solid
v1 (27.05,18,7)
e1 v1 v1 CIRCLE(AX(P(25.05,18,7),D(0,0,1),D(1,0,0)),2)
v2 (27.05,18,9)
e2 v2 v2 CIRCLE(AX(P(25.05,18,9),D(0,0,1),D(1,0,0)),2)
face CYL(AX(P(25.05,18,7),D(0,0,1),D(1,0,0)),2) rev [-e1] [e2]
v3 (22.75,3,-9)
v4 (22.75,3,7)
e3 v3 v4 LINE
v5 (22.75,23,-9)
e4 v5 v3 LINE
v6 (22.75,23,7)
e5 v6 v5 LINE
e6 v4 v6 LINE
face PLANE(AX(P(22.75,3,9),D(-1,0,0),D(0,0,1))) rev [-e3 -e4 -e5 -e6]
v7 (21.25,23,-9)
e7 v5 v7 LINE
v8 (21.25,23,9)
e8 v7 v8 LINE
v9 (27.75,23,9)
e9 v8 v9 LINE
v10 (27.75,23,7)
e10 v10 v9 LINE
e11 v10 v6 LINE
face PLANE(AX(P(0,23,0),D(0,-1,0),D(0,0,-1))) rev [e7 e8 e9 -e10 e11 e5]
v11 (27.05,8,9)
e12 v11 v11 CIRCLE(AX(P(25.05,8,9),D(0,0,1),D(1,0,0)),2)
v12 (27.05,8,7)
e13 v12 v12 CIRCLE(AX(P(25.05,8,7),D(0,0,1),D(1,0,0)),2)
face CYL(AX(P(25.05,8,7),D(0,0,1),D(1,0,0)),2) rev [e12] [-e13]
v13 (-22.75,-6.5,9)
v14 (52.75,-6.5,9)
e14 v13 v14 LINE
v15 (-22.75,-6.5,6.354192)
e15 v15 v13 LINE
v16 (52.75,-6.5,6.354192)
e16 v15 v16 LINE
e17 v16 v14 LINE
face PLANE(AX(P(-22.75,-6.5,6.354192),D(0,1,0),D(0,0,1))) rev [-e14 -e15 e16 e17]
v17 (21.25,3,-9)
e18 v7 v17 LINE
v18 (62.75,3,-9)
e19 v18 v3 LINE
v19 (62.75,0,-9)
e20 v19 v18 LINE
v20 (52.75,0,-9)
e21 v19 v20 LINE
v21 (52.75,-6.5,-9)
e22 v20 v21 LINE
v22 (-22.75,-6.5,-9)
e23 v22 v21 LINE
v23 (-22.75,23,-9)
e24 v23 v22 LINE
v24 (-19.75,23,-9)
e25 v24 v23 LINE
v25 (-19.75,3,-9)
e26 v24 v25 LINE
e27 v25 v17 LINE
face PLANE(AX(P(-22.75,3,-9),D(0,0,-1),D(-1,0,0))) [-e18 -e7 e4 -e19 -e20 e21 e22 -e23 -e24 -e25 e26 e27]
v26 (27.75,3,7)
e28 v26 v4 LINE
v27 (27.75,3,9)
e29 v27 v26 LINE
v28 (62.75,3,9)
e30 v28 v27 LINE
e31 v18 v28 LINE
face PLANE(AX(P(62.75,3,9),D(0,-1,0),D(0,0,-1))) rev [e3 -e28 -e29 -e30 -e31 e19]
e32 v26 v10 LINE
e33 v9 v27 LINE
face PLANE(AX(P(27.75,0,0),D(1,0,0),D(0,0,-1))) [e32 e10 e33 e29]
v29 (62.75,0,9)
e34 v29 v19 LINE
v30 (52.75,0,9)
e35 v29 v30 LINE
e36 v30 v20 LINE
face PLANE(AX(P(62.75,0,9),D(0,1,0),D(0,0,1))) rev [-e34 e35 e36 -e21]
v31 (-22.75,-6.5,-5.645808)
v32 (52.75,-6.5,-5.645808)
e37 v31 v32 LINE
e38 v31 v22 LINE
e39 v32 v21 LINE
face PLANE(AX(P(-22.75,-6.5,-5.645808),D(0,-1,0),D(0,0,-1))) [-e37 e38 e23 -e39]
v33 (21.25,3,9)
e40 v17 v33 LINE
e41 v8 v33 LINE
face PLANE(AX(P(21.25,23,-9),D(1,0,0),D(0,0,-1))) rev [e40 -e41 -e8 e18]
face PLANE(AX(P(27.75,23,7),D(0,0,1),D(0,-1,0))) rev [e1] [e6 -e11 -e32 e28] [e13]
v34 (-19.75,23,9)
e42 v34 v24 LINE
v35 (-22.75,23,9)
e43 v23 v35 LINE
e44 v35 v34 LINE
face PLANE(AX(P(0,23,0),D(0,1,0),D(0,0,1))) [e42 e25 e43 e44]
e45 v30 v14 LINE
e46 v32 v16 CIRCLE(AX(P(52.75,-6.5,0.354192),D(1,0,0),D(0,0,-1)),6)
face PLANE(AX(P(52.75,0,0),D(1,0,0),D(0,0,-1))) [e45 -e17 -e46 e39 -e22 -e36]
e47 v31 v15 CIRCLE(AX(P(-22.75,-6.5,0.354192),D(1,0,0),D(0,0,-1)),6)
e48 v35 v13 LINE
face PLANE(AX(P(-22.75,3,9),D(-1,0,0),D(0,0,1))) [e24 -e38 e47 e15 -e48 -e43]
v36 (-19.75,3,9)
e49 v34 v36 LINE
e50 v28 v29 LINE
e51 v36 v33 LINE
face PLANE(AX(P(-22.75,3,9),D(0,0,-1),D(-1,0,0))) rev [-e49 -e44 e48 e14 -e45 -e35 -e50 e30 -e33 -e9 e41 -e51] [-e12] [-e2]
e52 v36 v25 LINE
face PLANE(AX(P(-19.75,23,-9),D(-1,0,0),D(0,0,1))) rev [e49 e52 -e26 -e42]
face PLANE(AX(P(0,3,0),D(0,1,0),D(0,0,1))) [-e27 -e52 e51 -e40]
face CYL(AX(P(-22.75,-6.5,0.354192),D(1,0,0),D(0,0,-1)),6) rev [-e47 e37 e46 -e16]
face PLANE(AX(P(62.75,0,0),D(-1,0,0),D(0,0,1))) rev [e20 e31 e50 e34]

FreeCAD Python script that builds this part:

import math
import FreeCAD as App
import Part
import Sketcher

V = App.Vector
Q = App.Units.Quantity

doc = App.newDocument("Part")
body = doc.addObject("PartDesign::Body", "Body")

# Sketch on XZ plane
sketch1 = body.newObject("Sketcher::SketchObject", "Sketch")
sketch1.AttachmentSupport = (doc.getObject("XZ_Plane"), [""])
sketch1.MapMode = "FlatFace"
sketch1.addGeometry(Part.LineSegment(V(-22.75, -9, 0), V(-22.75, 9, 0)), False)
sketch1.addGeometry(Part.LineSegment(V(-22.75, 9, 0), V(22.75, 9, 0)), False)
sketch1.addGeometry(Part.LineSegment(V(22.75, 9, 0), V(22.75, -9, 0)), False)
sketch1.addGeometry(Part.LineSegment(V(22.75, -9, 0), V(-22.75, -9, 0)), False)
sketch1.addConstraint(Sketcher.Constraint("Coincident", 0, 2, 1, 1))
sketch1.addConstraint(Sketcher.Constraint("Coincident", 1, 2, 2, 1))
sketch1.addConstraint(Sketcher.Constraint("Coincident", 2, 2, 3, 1))
sketch1.addConstraint(Sketcher.Constraint("Coincident", 3, 2, 0, 1))
sketch1.addConstraint(Sketcher.Constraint("Vertical", 0))
sketch1.addConstraint(Sketcher.Constraint("Horizontal", 1))
sketch1.addConstraint(Sketcher.Constraint("Vertical", 2))
sketch1.addConstraint(Sketcher.Constraint("Horizontal", 3))
sketch1.addConstraint(Sketcher.Constraint("Symmetric", 0, 2, 2, 2, -1, 1))
sketch1.addConstraint(Sketcher.Constraint("DistanceY", 0, 1, 0, 2, Q("18 mm")))
sketch1.addConstraint(Sketcher.Constraint("DistanceX", 1, 1, 1, 2, Q("45.5 mm")))
pad1 = body.newObject("PartDesign::Pad", "Pad")
pad1.Profile = sketch1
pad1.Length = 3
pad1.Reversed = True

# Sketch on XZ plane
sketch2 = body.newObject("Sketcher::SketchObject", "Sketch001")
sketch2.AttachmentSupport = (doc.getObject("XZ_Plane"), [""])
sketch2.MapMode = "FlatFace"
sketch2.AttachmentOffset = App.Placement(V(0, 0, -3), App.Rotation())
sketch2.addGeometry(Part.LineSegment(V(-22.75, -9, 0), V(-22.75, 9, 0)), False)
sketch2.addGeometry(Part.LineSegment(V(-22.75, 9, 0), V(-19.75, 9, 0)), False)
sketch2.addGeometry(Part.LineSegment(V(-19.75, 9, 0), V(-19.75, -9, 0)), False)
sketch2.addGeometry(Part.LineSegment(V(-19.75, -9, 0), V(-22.75, -9, 0)), False)
sketch2.addGeometry(Part.LineSegment(V(21.25, -9, 0), V(21.25, 9, 0)), False)
sketch2.addGeometry(Part.LineSegment(V(21.25, 9, 0), V(22.75, 9, 0)), False)
sketch2.addGeometry(Part.LineSegment(V(22.75, 9, 0), V(22.75, -9, 0)), False)
sketch2.addGeometry(Part.LineSegment(V(22.75, -9, 0), V(21.25, -9, 0)), False)
sketch2.addConstraint(Sketcher.Constraint("Coincident", 0, 2, 1, 1))
sketch2.addConstraint(Sketcher.Constraint("Coincident", 1, 2, 2, 1))
sketch2.addConstraint(Sketcher.Constraint("Coincident", 2, 2, 3, 1))
sketch2.addConstraint(Sketcher.Constraint("Coincident", 3, 2, 0, 1))
sketch2.addConstraint(Sketcher.Constraint("Coincident", 4, 2, 5, 1))
sketch2.addConstraint(Sketcher.Constraint("Coincident", 5, 2, 6, 1))
sketch2.addConstraint(Sketcher.Constraint("Coincident", 6, 2, 7, 1))
sketch2.addConstraint(Sketcher.Constraint("Coincident", 7, 2, 4, 1))
sketch2.addConstraint(Sketcher.Constraint("Vertical", 0))
sketch2.addConstraint(Sketcher.Constraint("Horizontal", 1))
sketch2.addConstraint(Sketcher.Constraint("Vertical", 2))
sketch2.addConstraint(Sketcher.Constraint("Horizontal", 3))
sketch2.addConstraint(Sketcher.Constraint("Vertical", 4))
sketch2.addConstraint(Sketcher.Constraint("Horizontal", 5))
sketch2.addConstraint(Sketcher.Constraint("Vertical", 6))
sketch2.addConstraint(Sketcher.Constraint("Horizontal", 7))
sketch2.addConstraint(Sketcher.Constraint("Symmetric", 3, 2, 5, 2, -1, 1))
sketch2.addConstraint(Sketcher.Constraint("Horizontal", 1, 2, 4, 2))
sketch2.addConstraint(Sketcher.Constraint("Horizontal", 3, 2, 6, 2))
sketch2.addConstraint(Sketcher.Constraint("DistanceX", 1, 1, 1, 2, Q("3 mm")))
sketch2.addConstraint(Sketcher.Constraint("DistanceY", 0, 1, 0, 2, Q("18 mm")))
sketch2.addConstraint(Sketcher.Constraint("DistanceX", 5, 1, 5, 2, Q("1.5 mm")))
sketch2.addConstraint(Sketcher.Constraint("DistanceX", 1, 2, 4, 2, Q("41 mm")))
pad2 = body.newObject("PartDesign::Pad", "Pad001")
pad2.Profile = sketch2
pad2.Length = 20
pad2.Reversed = True

# Sketch on YZ plane
sketch3 = body.newObject("Sketcher::SketchObject", "Sketch002")
sketch3.AttachmentSupport = (doc.getObject("YZ_Plane"), [""])
sketch3.MapMode = "FlatFace"
sketch3.AttachmentOffset = App.Placement(V(0, 0, 22.75), App.Rotation())
sketch3.addGeometry(Part.LineSegment(V(23, 9, 0), V(3, 9, 0)), False)
sketch3.addGeometry(Part.LineSegment(V(3, 9, 0), V(3, 7, 0)), False)
sketch3.addGeometry(Part.LineSegment(V(3, 7, 0), V(23, 7, 0)), False)
sketch3.addGeometry(Part.LineSegment(V(23, 7, 0), V(23, 9, 0)), False)
sketch3.addConstraint(Sketcher.Constraint("Coincident", 0, 2, 1, 1))
sketch3.addConstraint(Sketcher.Constraint("Coincident", 1, 2, 2, 1))
sketch3.addConstraint(Sketcher.Constraint("Coincident", 2, 2, 3, 1))
sketch3.addConstraint(Sketcher.Constraint("Coincident", 3, 2, 0, 1))
sketch3.addConstraint(Sketcher.Constraint("Horizontal", 0))
sketch3.addConstraint(Sketcher.Constraint("Vertical", 1))
sketch3.addConstraint(Sketcher.Constraint("Horizontal", 2))
sketch3.addConstraint(Sketcher.Constraint("Vertical", 3))
sketch3.addConstraint(Sketcher.Constraint("DistanceX", 0, 2, 0, 1, Q("20 mm")))
sketch3.addConstraint(Sketcher.Constraint("DistanceY", 1, 2, 1, 1, Q("2 mm")))
sketch3.addConstraint(Sketcher.Constraint("DistanceX", -1, 1, 0, 2, Q("3 mm")))
sketch3.addConstraint(Sketcher.Constraint("DistanceY", -1, 1, 0, 2, Q("9 mm")))
pad3 = body.newObject("PartDesign::Pad", "Pad002")
pad3.Profile = sketch3
pad3.Length = 5

# Sketch on XY plane
sketch4 = body.newObject("Sketcher::SketchObject", "Sketch003")
sketch4.AttachmentSupport = (doc.getObject("XY_Plane"), [""])
sketch4.MapMode = "FlatFace"
sketch4.AttachmentOffset = App.Placement(V(0, 0, 9), App.Rotation())
sketch4.addGeometry(Part.Circle(V(25.05, 8, 0), V(0, 0, 1), 2), False)
sketch4.addGeometry(Part.Circle(V(25.05, 18, 0), V(0, 0, 1), 2), False)
sketch4.addConstraint(Sketcher.Constraint("Equal", 0, 1))
sketch4.addConstraint(Sketcher.Constraint("Vertical", 0, 3, 1, 3))
sketch4.addConstraint(Sketcher.Constraint("Diameter", 0, Q("4 mm")))
sketch4.addConstraint(Sketcher.Constraint("DistanceY", -1, 1, 0, 3, Q("8 mm")))
sketch4.addConstraint(Sketcher.Constraint("DistanceY", -1, 1, 1, 3, Q("18 mm")))
sketch4.addConstraint(Sketcher.Constraint("DistanceX", -1, 1, 0, 3, Q("25.05 mm")))
pocket1 = body.newObject("PartDesign::Pocket", "Pocket")
pocket1.Profile = sketch4
pocket1.Length = 2

# Sketch on YZ plane
sketch5 = body.newObject("Sketcher::SketchObject", "Sketch004")
sketch5.AttachmentSupport = (doc.getObject("YZ_Plane"), [""])
sketch5.MapMode = "FlatFace"
sketch5.AttachmentOffset = App.Placement(V(0, 0, -22.75), App.Rotation())
sketch5.addGeometry(Part.LineSegment(V(-6.5, 9, 0), V(0, 9, 0)), False)
sketch5.addGeometry(Part.LineSegment(V(0, 9, 0), V(0, -9, 0)), False)
sketch5.addGeometry(Part.LineSegment(V(0, -9, 0), V(-6.5, -9, 0)), False)
sketch5.addGeometry(Part.LineSegment(V(-6.5, -9, 0), V(-6.5, -5.645808, 0)), False)
sketch5.addGeometry(Part.ArcOfCircle(Part.Circle(V(-6.5, 0.354192, 0), V(0, 0, 1), 6), math.radians(-90), math.radians(90)), False)
sketch5.addGeometry(Part.LineSegment(V(-6.5, 6.354192, 0), V(-6.5, 9, 0)), False)
sketch5.addConstraint(Sketcher.Constraint("Coincident", 0, 2, 1, 1))
sketch5.addConstraint(Sketcher.Constraint("Coincident", 1, 2, 2, 1))
sketch5.addConstraint(Sketcher.Constraint("Coincident", 2, 2, 3, 1))
sketch5.addConstraint(Sketcher.Constraint("Coincident", 3, 2, 4, 1))
sketch5.addConstraint(Sketcher.Constraint("Coincident", 4, 2, 5, 1))
sketch5.addConstraint(Sketcher.Constraint("Coincident", 5, 2, 0, 1))
sketch5.addConstraint(Sketcher.Constraint("Horizontal", 0))
sketch5.addConstraint(Sketcher.Constraint("Vertical", 1))
sketch5.addConstraint(Sketcher.Constraint("Horizontal", 2))
sketch5.addConstraint(Sketcher.Constraint("Vertical", 3))
sketch5.addConstraint(Sketcher.Constraint("Vertical", 5))
sketch5.addConstraint(Sketcher.Constraint("Symmetric", 0, 2, 1, 2, -1, 1))
sketch5.addConstraint(Sketcher.Constraint("Vertical", 4, 3, 2, 2))
sketch5.addConstraint(Sketcher.Constraint("Vertical", 3, 2, 4, 2))
sketch5.addConstraint(Sketcher.Constraint("Radius", 4, Q("6 mm")))
sketch5.addConstraint(Sketcher.Constraint("DistanceY", 1, 2, 1, 1, Q("18 mm")))
sketch5.addConstraint(Sketcher.Constraint("DistanceX", 0, 1, 0, 2, Q("6.5 mm")))
sketch5.addConstraint(Sketcher.Constraint("DistanceY", 3, 1, 3, 2, Q("3.354192 mm")))
pad4 = body.newObject("PartDesign::Pad", "Pad003")
pad4.Profile = sketch5
pad4.Length = 75.5

# Sketch on YZ plane
sketch6 = body.newObject("Sketcher::SketchObject", "Sketch005")
sketch6.AttachmentSupport = (doc.getObject("YZ_Plane"), [""])
sketch6.MapMode = "FlatFace"
sketch6.AttachmentOffset = App.Placement(V(0, 0, 22.75), App.Rotation())
sketch6.addGeometry(Part.LineSegment(V(3, 9, 0), V(0, 9, 0)), False)
sketch6.addGeometry(Part.LineSegment(V(0, 9, 0), V(0, -9, 0)), False)
sketch6.addGeometry(Part.LineSegment(V(0, -9, 0), V(3, -9, 0)), False)
sketch6.addGeometry(Part.LineSegment(V(3, -9, 0), V(3, 9, 0)), False)
sketch6.addConstraint(Sketcher.Constraint("Coincident", 0, 2, 1, 1))
sketch6.addConstraint(Sketcher.Constraint("Coincident", 1, 2, 2, 1))
sketch6.addConstraint(Sketcher.Constraint("Coincident", 2, 2, 3, 1))
sketch6.addConstraint(Sketcher.Constraint("Coincident", 3, 2, 0, 1))
sketch6.addConstraint(Sketcher.Constraint("Horizontal", 0))
sketch6.addConstraint(Sketcher.Constraint("Vertical", 1))
sketch6.addConstraint(Sketcher.Constraint("Horizontal", 2))
sketch6.addConstraint(Sketcher.Constraint("Vertical", 3))
sketch6.addConstraint(Sketcher.Constraint("Symmetric", 0, 2, 1, 2, -1, 1))
sketch6.addConstraint(Sketcher.Constraint("DistanceX", 0, 2, 0, 1, Q("3 mm")))
sketch6.addConstraint(Sketcher.Constraint("DistanceY", 1, 2, 1, 1, Q("18 mm")))
pad5 = body.newObject("PartDesign::Pad", "Pad004")
pad5.Profile = sketch6
pad5.Length = 40

doc.recompute()
